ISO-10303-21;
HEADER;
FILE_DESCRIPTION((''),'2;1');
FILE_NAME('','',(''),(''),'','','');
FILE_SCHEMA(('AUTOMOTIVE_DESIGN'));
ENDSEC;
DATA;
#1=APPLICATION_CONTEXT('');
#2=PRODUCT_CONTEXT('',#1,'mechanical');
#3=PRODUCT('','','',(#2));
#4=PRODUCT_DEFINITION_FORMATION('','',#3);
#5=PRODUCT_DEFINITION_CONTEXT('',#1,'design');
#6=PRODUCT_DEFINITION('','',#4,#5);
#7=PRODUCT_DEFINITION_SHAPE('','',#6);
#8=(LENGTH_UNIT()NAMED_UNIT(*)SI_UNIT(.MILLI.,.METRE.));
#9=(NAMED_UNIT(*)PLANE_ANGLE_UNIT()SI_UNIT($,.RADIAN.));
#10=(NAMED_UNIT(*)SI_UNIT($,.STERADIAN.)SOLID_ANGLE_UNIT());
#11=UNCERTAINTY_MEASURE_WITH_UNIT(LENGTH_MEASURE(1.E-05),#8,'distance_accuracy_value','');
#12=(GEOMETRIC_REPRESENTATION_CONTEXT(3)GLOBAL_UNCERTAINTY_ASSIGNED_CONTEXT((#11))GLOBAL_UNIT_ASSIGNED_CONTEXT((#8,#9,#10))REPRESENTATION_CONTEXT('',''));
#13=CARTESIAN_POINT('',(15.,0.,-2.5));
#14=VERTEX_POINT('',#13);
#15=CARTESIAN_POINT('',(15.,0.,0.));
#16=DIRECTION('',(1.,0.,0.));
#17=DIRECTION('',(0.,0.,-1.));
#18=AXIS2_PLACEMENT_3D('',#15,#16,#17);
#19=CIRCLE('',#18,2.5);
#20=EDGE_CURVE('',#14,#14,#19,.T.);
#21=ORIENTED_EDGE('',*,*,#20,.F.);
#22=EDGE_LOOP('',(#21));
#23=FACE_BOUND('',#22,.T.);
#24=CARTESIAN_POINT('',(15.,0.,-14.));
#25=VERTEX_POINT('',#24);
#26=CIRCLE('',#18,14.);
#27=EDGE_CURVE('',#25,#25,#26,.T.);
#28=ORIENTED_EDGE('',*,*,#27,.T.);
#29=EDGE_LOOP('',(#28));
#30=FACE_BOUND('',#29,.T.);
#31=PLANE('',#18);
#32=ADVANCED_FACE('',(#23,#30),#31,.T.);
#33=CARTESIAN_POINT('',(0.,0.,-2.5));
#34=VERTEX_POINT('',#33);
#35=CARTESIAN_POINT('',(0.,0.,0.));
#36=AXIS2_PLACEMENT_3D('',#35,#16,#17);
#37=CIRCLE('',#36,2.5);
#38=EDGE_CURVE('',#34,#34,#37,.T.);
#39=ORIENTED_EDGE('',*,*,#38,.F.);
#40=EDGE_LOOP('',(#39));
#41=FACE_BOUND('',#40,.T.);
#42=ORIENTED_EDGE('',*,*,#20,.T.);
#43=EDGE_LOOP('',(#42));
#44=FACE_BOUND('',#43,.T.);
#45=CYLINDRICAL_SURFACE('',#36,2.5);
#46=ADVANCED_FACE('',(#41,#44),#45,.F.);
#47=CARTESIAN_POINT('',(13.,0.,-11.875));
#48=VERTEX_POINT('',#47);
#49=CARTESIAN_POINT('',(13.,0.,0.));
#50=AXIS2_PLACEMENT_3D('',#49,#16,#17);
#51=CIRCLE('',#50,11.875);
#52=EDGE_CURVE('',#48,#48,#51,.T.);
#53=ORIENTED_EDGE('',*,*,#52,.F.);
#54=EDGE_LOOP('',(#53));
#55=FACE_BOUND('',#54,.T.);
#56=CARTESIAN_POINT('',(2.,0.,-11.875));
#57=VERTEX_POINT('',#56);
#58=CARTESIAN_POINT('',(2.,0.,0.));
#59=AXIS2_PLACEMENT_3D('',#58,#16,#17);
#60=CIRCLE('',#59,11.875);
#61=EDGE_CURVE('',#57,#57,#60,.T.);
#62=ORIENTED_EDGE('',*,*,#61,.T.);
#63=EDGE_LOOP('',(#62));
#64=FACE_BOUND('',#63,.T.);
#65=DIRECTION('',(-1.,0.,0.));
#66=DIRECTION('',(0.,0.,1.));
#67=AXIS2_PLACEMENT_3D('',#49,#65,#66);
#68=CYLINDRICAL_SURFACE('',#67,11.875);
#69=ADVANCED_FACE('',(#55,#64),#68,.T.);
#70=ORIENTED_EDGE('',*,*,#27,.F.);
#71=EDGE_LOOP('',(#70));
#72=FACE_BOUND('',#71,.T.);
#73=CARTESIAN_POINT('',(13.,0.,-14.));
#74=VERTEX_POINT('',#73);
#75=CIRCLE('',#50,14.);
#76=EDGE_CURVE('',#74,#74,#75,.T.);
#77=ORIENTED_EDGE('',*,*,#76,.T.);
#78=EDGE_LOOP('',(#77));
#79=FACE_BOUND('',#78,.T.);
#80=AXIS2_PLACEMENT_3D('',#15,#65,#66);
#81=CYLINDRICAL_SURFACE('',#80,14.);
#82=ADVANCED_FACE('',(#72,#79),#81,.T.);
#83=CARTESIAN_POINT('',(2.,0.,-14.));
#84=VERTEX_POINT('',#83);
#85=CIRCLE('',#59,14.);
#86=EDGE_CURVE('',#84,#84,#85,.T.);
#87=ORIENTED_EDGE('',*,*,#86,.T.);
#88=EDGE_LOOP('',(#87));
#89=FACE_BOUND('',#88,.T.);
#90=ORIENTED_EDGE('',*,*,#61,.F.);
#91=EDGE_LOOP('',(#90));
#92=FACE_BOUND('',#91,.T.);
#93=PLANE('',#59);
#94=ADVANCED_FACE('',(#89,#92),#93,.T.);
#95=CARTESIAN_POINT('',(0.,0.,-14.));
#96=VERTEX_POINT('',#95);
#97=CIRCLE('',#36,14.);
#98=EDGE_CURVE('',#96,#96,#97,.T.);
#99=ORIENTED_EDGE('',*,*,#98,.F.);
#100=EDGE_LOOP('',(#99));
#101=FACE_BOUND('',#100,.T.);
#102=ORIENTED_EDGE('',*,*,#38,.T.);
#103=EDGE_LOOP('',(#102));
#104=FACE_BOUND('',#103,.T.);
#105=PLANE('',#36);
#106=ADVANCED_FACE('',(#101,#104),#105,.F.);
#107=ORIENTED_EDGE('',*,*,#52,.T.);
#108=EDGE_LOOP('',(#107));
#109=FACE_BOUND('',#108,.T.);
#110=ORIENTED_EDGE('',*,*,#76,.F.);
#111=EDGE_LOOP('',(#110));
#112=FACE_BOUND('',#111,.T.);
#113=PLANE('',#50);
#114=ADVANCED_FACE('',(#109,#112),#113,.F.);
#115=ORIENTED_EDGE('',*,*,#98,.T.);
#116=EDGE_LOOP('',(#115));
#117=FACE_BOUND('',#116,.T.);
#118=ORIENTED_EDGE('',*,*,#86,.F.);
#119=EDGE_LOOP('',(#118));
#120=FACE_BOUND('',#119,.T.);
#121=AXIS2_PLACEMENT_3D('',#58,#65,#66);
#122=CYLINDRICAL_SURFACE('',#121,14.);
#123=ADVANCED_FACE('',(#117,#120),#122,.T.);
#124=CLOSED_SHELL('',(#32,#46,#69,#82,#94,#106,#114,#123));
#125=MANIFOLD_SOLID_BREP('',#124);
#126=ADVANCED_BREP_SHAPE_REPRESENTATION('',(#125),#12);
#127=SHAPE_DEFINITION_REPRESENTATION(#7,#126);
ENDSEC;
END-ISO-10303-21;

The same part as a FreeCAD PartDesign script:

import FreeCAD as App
import Part
import Sketcher

doc = App.newDocument("Part")
body = doc.addObject("PartDesign::Body", "Body")

# Sketch on YZ plane
sketch1 = body.newObject("Sketcher::SketchObject", "Sketch")
sketch1.AttachmentSupport = (doc.getObject("YZ_Plane"), [""])
sketch1.MapMode = "FlatFace"
sketch1.addGeometry(Part.Circle(App.Vector(0, 0, 0), App.Vector(0, 0, 1), 14), False)
sketch1.addConstraint([
    Sketcher.Constraint("Coincident", 0, 3, -1, 1),
    Sketcher.Constraint("Diameter", 0, 28.0),
])
pad1 = body.newObject("PartDesign::Pad", "Pad")
pad1.Profile = sketch1
pad1.Length = 2

# Sketch on YZ plane
sketch2 = body.newObject("Sketcher::SketchObject", "Sketch001")
sketch2.AttachmentSupport = (doc.getObject("YZ_Plane"), [""])
sketch2.MapMode = "FlatFace"
sketch2.AttachmentOffset = App.Placement(App.Vector(0, 0, 2), App.Rotation())
sketch2.addGeometry(Part.Circle(App.Vector(0, 0, 0), App.Vector(0, 0, 1), 11.875), False)
sketch2.addConstraint([
    Sketcher.Constraint("Coincident", 0, 3, -1, 1),
    Sketcher.Constraint("Diameter", 0, 23.75),
])
pad2 = body.newObject("PartDesign::Pad", "Pad001")
pad2.Profile = sketch2
pad2.Length = 11

# Sketch on YZ plane
sketch3 = body.newObject("Sketcher::SketchObject", "Sketch002")
sketch3.AttachmentSupport = (doc.getObject("YZ_Plane"), [""])
sketch3.MapMode = "FlatFace"
sketch3.AttachmentOffset = App.Placement(App.Vector(0, 0, 13), App.Rotation())
sketch3.addGeometry(Part.Circle(App.Vector(0, 0, 0), App.Vector(0, 0, 1), 14), False)
sketch3.addConstraint([
    Sketcher.Constraint("Coincident", 0, 3, -1, 1),
    Sketcher.Constraint("Diameter", 0, 28.0),
])
pad3 = body.newObject("PartDesign::Pad", "Pad002")
pad3.Profile = sketch3
pad3.Length = 2

# Sketch on YZ plane
sketch4 = body.newObject("Sketcher::SketchObject", "Sketch003")
sketch4.AttachmentSupport = (doc.getObject("YZ_Plane"), [""])
sketch4.MapMode = "FlatFace"
sketch4.AttachmentOffset = App.Placement(App.Vector(0, 0, 15), App.Rotation())
sketch4.addGeometry(Part.Circle(App.Vector(0, 0, 0), App.Vector(0, 0, 1), 2.5), False)
sketch4.addConstraint([
    Sketcher.Constraint("Coincident", 0, 3, -1, 1),
    Sketcher.Constraint("Diameter", 0, 5.0),
])
pocket1 = body.newObject("PartDesign::Pocket", "Pocket")
pocket1.Profile = sketch4
pocket1.Type = "ThroughAll"

doc.recompute()
